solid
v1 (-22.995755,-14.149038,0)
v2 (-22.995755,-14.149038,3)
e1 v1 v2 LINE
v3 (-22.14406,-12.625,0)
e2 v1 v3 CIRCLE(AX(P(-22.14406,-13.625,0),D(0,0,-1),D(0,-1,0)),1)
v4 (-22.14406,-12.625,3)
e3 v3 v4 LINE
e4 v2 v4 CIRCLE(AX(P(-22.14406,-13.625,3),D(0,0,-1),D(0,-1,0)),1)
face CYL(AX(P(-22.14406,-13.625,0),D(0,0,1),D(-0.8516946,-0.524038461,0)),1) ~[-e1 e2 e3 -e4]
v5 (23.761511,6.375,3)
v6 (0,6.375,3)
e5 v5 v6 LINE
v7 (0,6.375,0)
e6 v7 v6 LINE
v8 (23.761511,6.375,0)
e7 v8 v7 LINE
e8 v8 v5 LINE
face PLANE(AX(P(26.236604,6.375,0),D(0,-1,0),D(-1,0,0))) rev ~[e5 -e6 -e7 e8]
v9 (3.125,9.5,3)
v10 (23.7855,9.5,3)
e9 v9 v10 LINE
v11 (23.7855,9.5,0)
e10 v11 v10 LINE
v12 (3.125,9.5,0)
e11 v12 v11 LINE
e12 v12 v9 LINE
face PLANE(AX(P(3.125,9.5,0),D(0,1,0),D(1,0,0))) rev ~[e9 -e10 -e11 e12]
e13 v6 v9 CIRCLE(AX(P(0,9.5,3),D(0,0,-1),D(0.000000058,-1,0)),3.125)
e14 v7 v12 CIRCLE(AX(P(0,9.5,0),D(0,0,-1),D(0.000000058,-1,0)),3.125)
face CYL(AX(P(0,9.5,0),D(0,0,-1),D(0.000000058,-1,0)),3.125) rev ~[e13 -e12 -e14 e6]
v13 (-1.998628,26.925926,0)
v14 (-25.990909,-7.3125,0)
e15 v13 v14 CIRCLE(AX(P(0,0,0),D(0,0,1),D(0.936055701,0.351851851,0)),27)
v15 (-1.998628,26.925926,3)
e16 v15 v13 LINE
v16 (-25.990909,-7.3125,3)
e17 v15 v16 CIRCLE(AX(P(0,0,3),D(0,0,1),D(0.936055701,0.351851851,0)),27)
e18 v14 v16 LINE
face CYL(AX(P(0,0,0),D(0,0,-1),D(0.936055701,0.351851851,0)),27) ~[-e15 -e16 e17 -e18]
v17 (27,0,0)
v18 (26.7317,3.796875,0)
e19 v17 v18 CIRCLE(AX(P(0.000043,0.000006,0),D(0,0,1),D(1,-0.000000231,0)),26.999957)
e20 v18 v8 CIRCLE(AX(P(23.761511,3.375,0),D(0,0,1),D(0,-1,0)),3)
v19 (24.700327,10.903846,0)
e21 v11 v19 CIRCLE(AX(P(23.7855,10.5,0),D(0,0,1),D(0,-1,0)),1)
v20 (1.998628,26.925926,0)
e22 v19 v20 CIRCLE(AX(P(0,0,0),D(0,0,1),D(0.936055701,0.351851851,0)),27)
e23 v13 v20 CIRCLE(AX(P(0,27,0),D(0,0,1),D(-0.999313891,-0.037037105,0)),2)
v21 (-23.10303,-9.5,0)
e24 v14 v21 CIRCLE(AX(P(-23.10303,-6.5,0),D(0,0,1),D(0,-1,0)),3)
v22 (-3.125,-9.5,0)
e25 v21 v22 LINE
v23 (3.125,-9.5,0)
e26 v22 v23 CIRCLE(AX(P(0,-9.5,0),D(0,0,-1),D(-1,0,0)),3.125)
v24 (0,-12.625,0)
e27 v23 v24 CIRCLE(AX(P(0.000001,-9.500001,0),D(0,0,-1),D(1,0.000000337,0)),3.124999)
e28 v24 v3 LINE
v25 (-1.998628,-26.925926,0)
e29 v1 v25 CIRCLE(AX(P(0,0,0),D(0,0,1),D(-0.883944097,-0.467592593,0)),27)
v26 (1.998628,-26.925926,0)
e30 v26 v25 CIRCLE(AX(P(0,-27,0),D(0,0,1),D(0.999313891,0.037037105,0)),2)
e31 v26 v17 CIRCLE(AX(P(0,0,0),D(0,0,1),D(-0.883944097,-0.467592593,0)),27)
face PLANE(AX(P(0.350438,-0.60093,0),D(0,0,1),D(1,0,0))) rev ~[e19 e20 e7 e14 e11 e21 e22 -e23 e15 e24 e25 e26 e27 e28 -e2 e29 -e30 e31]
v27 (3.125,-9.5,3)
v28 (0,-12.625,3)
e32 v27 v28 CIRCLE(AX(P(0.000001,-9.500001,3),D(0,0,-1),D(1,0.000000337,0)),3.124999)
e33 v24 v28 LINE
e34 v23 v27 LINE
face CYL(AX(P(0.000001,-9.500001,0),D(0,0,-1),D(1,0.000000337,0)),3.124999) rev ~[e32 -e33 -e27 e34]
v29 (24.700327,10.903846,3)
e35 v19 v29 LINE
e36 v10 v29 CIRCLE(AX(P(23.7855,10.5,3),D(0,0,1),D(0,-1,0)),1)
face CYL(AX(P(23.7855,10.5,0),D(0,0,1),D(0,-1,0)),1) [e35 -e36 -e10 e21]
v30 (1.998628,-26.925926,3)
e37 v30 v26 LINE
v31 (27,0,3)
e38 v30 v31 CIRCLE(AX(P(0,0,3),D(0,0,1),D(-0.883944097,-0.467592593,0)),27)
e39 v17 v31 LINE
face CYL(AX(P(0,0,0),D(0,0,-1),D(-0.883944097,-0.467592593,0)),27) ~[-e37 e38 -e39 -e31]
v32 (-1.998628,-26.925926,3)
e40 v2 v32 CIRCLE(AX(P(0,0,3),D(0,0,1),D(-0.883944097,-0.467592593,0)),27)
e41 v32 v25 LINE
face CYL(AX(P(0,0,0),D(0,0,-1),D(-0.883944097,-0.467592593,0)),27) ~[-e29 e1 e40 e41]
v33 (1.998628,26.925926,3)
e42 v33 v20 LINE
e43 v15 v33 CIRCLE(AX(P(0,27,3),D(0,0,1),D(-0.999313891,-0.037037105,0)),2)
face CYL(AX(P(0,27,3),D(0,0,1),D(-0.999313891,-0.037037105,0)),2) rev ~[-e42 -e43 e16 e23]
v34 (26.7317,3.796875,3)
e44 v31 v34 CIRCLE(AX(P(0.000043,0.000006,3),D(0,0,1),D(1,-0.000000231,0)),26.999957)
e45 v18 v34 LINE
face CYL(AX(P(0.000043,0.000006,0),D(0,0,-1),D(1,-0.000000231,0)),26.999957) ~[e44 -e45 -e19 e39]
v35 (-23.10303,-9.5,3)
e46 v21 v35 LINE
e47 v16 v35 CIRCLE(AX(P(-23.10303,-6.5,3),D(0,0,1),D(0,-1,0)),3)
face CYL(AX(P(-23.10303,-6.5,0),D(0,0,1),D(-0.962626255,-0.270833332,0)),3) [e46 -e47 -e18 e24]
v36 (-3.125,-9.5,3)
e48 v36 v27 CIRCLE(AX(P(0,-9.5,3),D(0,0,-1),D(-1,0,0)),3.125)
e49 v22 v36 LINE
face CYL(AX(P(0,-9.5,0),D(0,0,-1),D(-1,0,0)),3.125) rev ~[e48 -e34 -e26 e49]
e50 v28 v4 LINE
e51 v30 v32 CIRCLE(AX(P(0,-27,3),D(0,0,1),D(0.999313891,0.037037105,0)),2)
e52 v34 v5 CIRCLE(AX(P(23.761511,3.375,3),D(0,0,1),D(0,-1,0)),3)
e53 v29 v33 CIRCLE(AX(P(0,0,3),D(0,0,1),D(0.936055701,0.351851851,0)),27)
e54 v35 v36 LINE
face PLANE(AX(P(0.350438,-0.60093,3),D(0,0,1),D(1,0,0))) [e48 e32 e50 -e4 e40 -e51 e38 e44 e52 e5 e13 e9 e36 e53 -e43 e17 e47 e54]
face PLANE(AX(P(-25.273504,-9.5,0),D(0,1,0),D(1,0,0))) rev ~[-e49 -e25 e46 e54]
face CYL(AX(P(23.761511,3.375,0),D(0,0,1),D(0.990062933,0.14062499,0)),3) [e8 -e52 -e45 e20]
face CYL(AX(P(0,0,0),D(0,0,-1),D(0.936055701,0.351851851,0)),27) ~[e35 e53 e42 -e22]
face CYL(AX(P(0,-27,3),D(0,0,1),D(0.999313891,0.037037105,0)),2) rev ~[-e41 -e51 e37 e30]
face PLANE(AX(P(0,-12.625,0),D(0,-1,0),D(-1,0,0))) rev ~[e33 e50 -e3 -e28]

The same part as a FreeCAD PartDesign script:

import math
import FreeCAD as App
import Part
import Sketcher
Q = App.Units.Quantity


def edges_at(feature, points):
    """Names of the edges that pass closest to the given points."""
    edges = feature.Shape.Edges
    near = lambda p: min(range(len(edges)), key=lambda i: edges[i].distToShape(Part.Vertex(*p))[0])
    return sorted({f"Edge{near(p) + 1}" for p in points})

doc = App.newDocument("Part")
params = doc.addObject("Spreadsheet::Sheet", "Params")
for row, (alias, value) in enumerate([
    ("sketch1_radius", "27 mm"),
    ("pad1_length", "3 mm"),
    ("fillet_radius", "3 mm"),
    ("fillet2_radius", "1 mm"),
    ("sketch2_radius", "2 mm"),
    ("pocket1_length", "25 mm"),
], start=1):
    params.set(f"A{row}", alias)
    params.set(f"B{row}", "=" + value)
    params.setAlias(f"B{row}", alias)

body = doc.addObject("PartDesign::Body", "Body")

# Sketch on XY plane
sketch1 = body.newObject("Sketcher::SketchObject", "Sketch")
sketch1.AttachmentSupport = (doc.getObject("XY_Plane"), [""])
sketch1.MapMode = "FlatFace"
sketch1.addGeometry([
    Part.ArcOfCircle(Part.Circle(App.Vector(0, 0, 0), App.Vector(0, 0, 1), 27), math.radians(-152.12186), math.radians(0)),  # 0
    Part.ArcOfCircle(Part.Circle(App.Vector(0.000043, 0.000006, 0), App.Vector(0, 0, 1), 26.999957), math.radians(-0.000013), math.radians(13.657136)),  # 1
    Part.LineSegment(App.Vector(26.236604, 6.375, 0), App.Vector(0, 6.375, 0)),  # 2
    Part.ArcOfCircle(Part.Circle(App.Vector(0, 9.5, 0), App.Vector(0, 0, 1), 3.125), math.radians(-0.000003), math.radians(270.000003)),  # 3
    Part.LineSegment(App.Vector(3.125, 9.5, 0), App.Vector(25.273504, 9.5, 0)),  # 4
    Part.ArcOfCircle(Part.Circle(App.Vector(0, 0, 0), App.Vector(0, 0, 1), 27), math.radians(20.600624), math.radians(200.600624)),  # 5
    Part.LineSegment(App.Vector(-25.273504, -9.5, 0), App.Vector(-3.125, -9.5, 0)),  # 6
    Part.ArcOfCircle(Part.Circle(App.Vector(0, -9.5, 0), App.Vector(0, 0, 1), 3.125), math.radians(0), math.radians(180)),  # 7
    Part.ArcOfCircle(Part.Circle(App.Vector(0.000001, -9.500001, 0), App.Vector(0, 0, 1), 3.124999), math.radians(-90.000019), math.radians(0.000019)),  # 8
    Part.LineSegment(App.Vector(0, -12.625, 0), App.Vector(-23.866491, -12.625, 0)),  # 9
], False)
sketch1.addConstraint([
    Sketcher.Constraint("Tangent", 0, 2, 1, 1),
    Sketcher.Constraint("Coincident", 1, 2, 2, 1),
    Sketcher.Constraint("Tangent", 2, 2, 3, 2),
    Sketcher.Constraint("Coincident", 3, 1, 4, 1),
    Sketcher.Constraint("Coincident", 4, 2, 5, 1),
    Sketcher.Constraint("Coincident", 5, 2, 6, 1),
    Sketcher.Constraint("Coincident", 6, 2, 7, 2),
    Sketcher.Constraint("Tangent", 7, 1, 8, 2),
    Sketcher.Constraint("Tangent", 8, 1, 9, 1),
    Sketcher.Constraint("Coincident", 9, 2, 0, 1),
    Sketcher.Constraint("Horizontal", 2),
    Sketcher.Constraint("Horizontal", 4),
    Sketcher.Constraint("Horizontal", 6),
    Sketcher.Constraint("Horizontal", 9),
    Sketcher.Constraint("Coincident", 0, 3, -1, 1),
    Sketcher.Constraint("Coincident", 5, 3, -1, 1),
    Sketcher.Constraint("Equal", 0, 5),
    Sketcher.Constraint("Equal", 3, 7),
    Sketcher.Constraint("Equal", 7, 8),
    Sketcher.Constraint("Symmetric", 3, 3, 7, 3, -1, 1),
    Sketcher.Constraint("Symmetric", 6, 2, 7, 1, -2),
    Sketcher.Constraint("PointOnObject", 0, 2, -1),
    Sketcher.Constraint("Horizontal", 8, 3, 5, 2),
    Sketcher.Constraint("Equal", 4, 6),
    Sketcher.Constraint("Radius", 0, Q("27 mm")),
    Sketcher.Constraint("Radius", 3, Q("3.125 mm")),
    Sketcher.Constraint("DistanceY", 7, 3, 3, 3, Q("19 mm")),
    Sketcher.Constraint("Radius", 1, Q("26.999957 mm")),
])
sketch1.setExpression("Constraints[24]", "Params.sketch1_radius")
pad1 = body.newObject("PartDesign::Pad", "Pad")
pad1.Profile = sketch1
pad1.setExpression("Length", "Params.pad1_length")
doc.recompute()

fillet = body.newObject("PartDesign::Fillet", "Fillet")
fillet.Base = (pad1, edges_at(pad1, [(-25.274, -9.5, 1.5), (26.237, 6.375, 1.5)]))
fillet.setExpression("Radius", "Params.fillet_radius")
doc.recompute()

fillet2 = body.newObject("PartDesign::Fillet", "Fillet001")
fillet2.Base = (fillet, edges_at(fillet, [(25.274, 9.5, 1.5), (-23.866, -12.625, 1.5)]))
fillet2.setExpression("Radius", "Params.fillet2_radius")

# Sketch on XY plane
sketch2 = body.newObject("Sketcher::SketchObject", "Sketch001")
sketch2.AttachmentSupport = (doc.getObject("XY_Plane"), [""])
sketch2.MapMode = "FlatFace"
sketch2.AttachmentOffset = App.Placement(App.Vector(0, 0, 3), App.Rotation())
sketch2.addGeometry([
    Part.ArcOfCircle(Part.Circle(App.Vector(0, -0.000033, 0), App.Vector(0, 0, 1), 27.000033), math.radians(85.754902), math.radians(94.245098)),
    Part.ArcOfCircle(Part.Circle(App.Vector(0, 27, 0), App.Vector(0, 0, 1), 2), math.radians(-177.877445), math.radians(-2.122555)),
    Part.ArcOfCircle(Part.Circle(App.Vector(0, 0.000033, 0), App.Vector(0, 0, 1), 27.000033), math.radians(-94.245098), math.radians(-85.754902)),
    Part.ArcOfCircle(Part.Circle(App.Vector(0, -27, 0), App.Vector(0, 0, 1), 2), math.radians(2.122555), math.radians(177.877445)),
], False)
sketch2.addConstraint([
    Sketcher.Constraint("Coincident", 0, 1, 1, 2),
    Sketcher.Constraint("Coincident", 1, 1, 0, 2),
    Sketcher.Constraint("Coincident", 2, 1, 3, 2),
    Sketcher.Constraint("Coincident", 3, 1, 2, 2),
    Sketcher.Constraint("Equal", 0, 2),
    Sketcher.Constraint("Equal", 1, 3),
    Sketcher.Constraint("Symmetric", 0, 3, 2, 3, -1, 1),
    Sketcher.Constraint("Symmetric", 1, 3, 3, 3, -1, 1),
    Sketcher.Constraint("Symmetric", 0, 1, 1, 1, -2),
    Sketcher.Constraint("Radius", 1, Q("2 mm")),
    Sketcher.Constraint("DistanceY", -1, 1, 1, 3, Q("27 mm")),
    Sketcher.Constraint("Radius", 0, Q("27.000033 mm")),
    Sketcher.Constraint("DistanceY", -1, 1, 0, 1, Q("26.925926 mm")),
])
sketch2.setExpression("Constraints[9]", "Params.sketch2_radius")
pocket1 = body.newObject("PartDesign::Pocket", "Pocket")
pocket1.Profile = sketch2
pocket1.setExpression("Length", "Params.pocket1_length")

doc.recompute()
